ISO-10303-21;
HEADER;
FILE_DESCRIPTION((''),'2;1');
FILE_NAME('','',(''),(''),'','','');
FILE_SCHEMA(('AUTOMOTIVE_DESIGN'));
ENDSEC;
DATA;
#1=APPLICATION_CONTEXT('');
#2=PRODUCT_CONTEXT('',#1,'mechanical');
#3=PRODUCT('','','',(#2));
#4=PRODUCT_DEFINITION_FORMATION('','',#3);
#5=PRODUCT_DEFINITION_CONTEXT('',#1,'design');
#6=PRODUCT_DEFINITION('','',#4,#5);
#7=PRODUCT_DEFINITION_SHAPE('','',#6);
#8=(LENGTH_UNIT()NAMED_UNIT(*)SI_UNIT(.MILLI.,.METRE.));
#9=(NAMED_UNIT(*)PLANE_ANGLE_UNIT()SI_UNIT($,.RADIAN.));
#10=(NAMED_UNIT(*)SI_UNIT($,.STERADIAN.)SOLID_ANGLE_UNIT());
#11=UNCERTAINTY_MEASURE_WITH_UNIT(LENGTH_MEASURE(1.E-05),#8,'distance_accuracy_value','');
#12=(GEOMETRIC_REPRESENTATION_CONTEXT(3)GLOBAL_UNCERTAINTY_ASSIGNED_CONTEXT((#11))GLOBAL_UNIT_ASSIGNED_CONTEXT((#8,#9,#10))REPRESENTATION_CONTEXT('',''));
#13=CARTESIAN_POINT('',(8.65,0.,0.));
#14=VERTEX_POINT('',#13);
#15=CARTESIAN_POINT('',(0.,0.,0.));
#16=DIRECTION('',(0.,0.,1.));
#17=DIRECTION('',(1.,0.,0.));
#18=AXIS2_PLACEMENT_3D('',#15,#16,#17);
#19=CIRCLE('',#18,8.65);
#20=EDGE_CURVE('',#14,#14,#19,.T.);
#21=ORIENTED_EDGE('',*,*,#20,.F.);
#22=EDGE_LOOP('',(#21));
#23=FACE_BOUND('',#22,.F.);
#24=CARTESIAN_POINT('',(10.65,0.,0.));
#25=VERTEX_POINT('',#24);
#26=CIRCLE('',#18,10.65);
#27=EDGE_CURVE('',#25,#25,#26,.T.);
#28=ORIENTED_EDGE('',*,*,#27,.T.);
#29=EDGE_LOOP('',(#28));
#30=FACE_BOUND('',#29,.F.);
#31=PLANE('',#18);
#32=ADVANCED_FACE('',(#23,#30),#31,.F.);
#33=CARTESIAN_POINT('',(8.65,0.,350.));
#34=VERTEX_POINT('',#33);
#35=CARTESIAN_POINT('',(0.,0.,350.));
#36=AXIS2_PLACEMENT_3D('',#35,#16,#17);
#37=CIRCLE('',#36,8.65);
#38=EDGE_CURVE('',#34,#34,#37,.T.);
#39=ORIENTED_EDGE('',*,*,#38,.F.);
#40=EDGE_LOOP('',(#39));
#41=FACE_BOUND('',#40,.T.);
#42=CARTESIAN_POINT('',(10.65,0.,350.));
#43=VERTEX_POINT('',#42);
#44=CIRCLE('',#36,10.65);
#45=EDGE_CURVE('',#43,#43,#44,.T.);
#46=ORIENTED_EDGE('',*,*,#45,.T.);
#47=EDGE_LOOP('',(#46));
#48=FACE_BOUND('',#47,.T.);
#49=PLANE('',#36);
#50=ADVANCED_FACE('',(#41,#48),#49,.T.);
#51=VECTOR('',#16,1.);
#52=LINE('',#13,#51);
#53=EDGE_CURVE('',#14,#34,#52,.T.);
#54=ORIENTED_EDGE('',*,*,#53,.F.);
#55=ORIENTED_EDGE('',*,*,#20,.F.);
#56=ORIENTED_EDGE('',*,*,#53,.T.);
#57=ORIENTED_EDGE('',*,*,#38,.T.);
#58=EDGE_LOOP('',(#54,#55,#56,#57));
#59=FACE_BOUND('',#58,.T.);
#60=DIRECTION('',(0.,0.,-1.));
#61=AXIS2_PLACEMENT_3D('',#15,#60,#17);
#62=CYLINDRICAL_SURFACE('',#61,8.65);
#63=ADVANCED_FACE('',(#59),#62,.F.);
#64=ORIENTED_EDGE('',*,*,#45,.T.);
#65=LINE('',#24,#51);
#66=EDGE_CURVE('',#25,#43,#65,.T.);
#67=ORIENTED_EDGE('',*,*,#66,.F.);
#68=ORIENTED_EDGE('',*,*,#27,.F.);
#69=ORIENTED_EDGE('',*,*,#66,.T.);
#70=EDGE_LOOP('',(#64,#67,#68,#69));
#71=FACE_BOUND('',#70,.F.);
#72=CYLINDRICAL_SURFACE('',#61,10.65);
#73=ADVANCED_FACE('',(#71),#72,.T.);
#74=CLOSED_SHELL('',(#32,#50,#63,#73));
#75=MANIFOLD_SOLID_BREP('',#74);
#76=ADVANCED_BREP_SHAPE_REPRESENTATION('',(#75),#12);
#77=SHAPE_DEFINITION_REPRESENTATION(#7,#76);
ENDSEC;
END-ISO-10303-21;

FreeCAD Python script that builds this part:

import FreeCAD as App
import Part
import Sketcher

V = App.Vector

doc = App.newDocument("Part")
body = doc.addObject("PartDesign::Body", "Body")

# Sketch on XY plane
sketch1 = body.newObject("Sketcher::SketchObject", "Sketch")
sketch1.AttachmentSupport = (doc.getObject("XY_Plane"), [""])
sketch1.MapMode = "FlatFace"
sketch1.addGeometry([
    Part.Circle(V(0, 0, 0), V(0, 0, 1), 10.65),
    Part.Circle(V(0, 0, 0), V(0, 0, 1), 8.65),
], False)
sketch1.addConstraint([
    Sketcher.Constraint("Coincident", 0, 3, -1, 1),
    Sketcher.Constraint("Coincident", 1, 3, -1, 1),
    Sketcher.Constraint("Diameter", 0, 21.3),
    Sketcher.Constraint("Diameter", 1, 17.3),
])
pad1 = body.newObject("PartDesign::Pad", "Pad")
pad1.Profile = sketch1
pad1.Length = 350

doc.recompute()
